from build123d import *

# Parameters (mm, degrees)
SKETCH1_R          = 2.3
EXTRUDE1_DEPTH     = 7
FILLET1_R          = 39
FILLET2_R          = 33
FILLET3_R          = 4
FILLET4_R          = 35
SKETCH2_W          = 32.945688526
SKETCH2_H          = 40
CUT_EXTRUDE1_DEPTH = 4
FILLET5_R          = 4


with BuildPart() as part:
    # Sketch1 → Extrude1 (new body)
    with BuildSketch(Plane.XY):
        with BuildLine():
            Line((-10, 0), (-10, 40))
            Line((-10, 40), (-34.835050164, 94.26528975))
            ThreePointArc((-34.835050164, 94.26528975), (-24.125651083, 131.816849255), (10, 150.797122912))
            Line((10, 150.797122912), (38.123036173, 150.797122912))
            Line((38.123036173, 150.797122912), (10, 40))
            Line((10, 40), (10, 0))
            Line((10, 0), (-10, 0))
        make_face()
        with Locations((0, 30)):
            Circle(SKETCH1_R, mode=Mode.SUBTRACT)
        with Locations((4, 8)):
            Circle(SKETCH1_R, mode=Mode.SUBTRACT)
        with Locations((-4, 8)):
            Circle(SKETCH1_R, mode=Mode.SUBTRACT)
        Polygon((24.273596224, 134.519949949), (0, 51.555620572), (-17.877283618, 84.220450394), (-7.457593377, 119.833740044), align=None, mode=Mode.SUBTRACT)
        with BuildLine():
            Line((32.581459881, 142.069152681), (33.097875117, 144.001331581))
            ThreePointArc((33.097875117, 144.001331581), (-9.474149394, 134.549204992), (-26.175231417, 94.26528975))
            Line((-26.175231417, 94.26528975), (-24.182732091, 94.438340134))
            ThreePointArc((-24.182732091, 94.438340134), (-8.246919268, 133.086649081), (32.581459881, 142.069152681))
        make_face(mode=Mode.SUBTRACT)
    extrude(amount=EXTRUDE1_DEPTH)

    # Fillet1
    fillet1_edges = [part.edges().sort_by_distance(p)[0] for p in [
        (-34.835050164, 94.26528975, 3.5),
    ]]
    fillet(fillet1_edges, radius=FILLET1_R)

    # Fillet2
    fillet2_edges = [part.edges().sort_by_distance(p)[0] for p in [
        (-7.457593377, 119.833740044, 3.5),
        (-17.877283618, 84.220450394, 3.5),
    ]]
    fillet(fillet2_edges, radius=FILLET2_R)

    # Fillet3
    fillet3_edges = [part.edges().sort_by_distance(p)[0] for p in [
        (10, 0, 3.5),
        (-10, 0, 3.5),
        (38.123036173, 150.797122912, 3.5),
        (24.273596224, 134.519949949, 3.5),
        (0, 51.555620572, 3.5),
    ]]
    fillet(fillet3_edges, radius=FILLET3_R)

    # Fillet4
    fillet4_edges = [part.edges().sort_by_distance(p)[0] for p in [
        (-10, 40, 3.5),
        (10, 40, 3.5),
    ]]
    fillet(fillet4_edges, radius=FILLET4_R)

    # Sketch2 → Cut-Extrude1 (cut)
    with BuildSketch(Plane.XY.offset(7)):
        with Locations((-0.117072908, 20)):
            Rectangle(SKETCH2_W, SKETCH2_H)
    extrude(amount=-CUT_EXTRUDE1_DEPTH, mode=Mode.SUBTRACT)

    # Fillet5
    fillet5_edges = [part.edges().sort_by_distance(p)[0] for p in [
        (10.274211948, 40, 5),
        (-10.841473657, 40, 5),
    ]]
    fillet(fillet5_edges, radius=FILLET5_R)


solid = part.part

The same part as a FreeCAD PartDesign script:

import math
import FreeCAD as App
import Part
import Sketcher
from FreeCAD import Vector


def edges_at(feature, points):
    """Names of the edges that pass closest to the given points."""
    edges = feature.Shape.Edges
    near = lambda p: min(range(len(edges)), key=lambda i: edges[i].distToShape(Part.Vertex(*p))[0])
    return sorted({f"Edge{near(p) + 1}" for p in points})

doc = App.newDocument("Part")
body = doc.addObject("PartDesign::Body", "Body")

# Sketch on XY plane
sketch1 = body.newObject("Sketcher::SketchObject", "Sketch")
sketch1.AttachmentSupport = (doc.getObject("XY_Plane"), [""])
sketch1.MapMode = "FlatFace"
sketch1.addGeometry(Part.LineSegment(Vector(-10, 40, 0), Vector(-10, 0, 0)), False)
sketch1.addGeometry(Part.LineSegment(Vector(-10, 0, 0), Vector(10, 0, 0)), False)
sketch1.addGeometry(Part.LineSegment(Vector(10, 0, 0), Vector(10, 40, 0)), False)
sketch1.addGeometry(Part.LineSegment(Vector(10, 40, 0), Vector(38.1, 150.8, 0)), False)
sketch1.addGeometry(Part.LineSegment(Vector(38.1, 150.8, 0), Vector(10, 150.8, 0)), False)
sketch1.addGeometry(Part.ArcOfCircle(Part.Circle(Vector(15.8, 100.1, 0), Vector(0, 0, 1), 51), math.radians(97), math.radians(187)), False)
sketch1.addGeometry(Part.LineSegment(Vector(-34.8, 94.3, 0), Vector(-10, 40, 0)), False)
sketch1.addGeometry(Part.Circle(Vector(4, 8, 0), Vector(0, 0, 1), 2.3), False)
sketch1.addGeometry(Part.Circle(Vector(-4, 8, 0), Vector(0, 0, 1), 2.3), False)
sketch1.addGeometry(Part.Circle(Vector(0, 30, 0), Vector(0, 0, 1), 2.3), False)
sketch1.addGeometry(Part.LineSegment(Vector(24.3, 134.5, 0), Vector(0, 51.6, 0)), False)
sketch1.addGeometry(Part.LineSegment(Vector(0, 51.6, 0), Vector(-17.9, 84.2, 0)), False)
sketch1.addGeometry(Part.LineSegment(Vector(-17.9, 84.2, 0), Vector(-7.5, 119.8, 0)), False)
sketch1.addGeometry(Part.LineSegment(Vector(-7.5, 119.8, 0), Vector(24.3, 134.5, 0)), False)
sketch1.addGeometry(Part.ArcOfCircle(Part.Circle(Vector(20.8, 98.5, 0), Vector(0, 0, 1), 45.1), math.radians(75), math.radians(185)), False)
sketch1.addGeometry(Part.LineSegment(Vector(-24.2, 94.4, 0), Vector(-26.2, 94.3, 0)), False)
sketch1.addGeometry(Part.ArcOfCircle(Part.Circle(Vector(20.9, 98.4, 0), Vector(0, 0, 1), 47.2), math.radians(75), math.radians(185)), False)
sketch1.addGeometry(Part.LineSegment(Vector(33.1, 144, 0), Vector(32.6, 142.1, 0)), False)
sketch1.addConstraint(Sketcher.Constraint("Coincident", 0, 2, 1, 1))
sketch1.addConstraint(Sketcher.Constraint("Coincident", 1, 2, 2, 1))
sketch1.addConstraint(Sketcher.Constraint("Coincident", 2, 2, 3, 1))
sketch1.addConstraint(Sketcher.Constraint("Coincident", 3, 2, 4, 1))
sketch1.addConstraint(Sketcher.Constraint("Coincident", 4, 2, 5, 1))
sketch1.addConstraint(Sketcher.Constraint("Coincident", 5, 2, 6, 1))
sketch1.addConstraint(Sketcher.Constraint("Coincident", 6, 2, 0, 1))
sketch1.addConstraint(Sketcher.Constraint("Coincident", 10, 2, 11, 1))
sketch1.addConstraint(Sketcher.Constraint("Coincident", 11, 2, 12, 1))
sketch1.addConstraint(Sketcher.Constraint("Coincident", 12, 2, 13, 1))
sketch1.addConstraint(Sketcher.Constraint("Coincident", 13, 2, 10, 1))
sketch1.addConstraint(Sketcher.Constraint("Coincident", 14, 2, 15, 1))
sketch1.addConstraint(Sketcher.Constraint("Coincident", 15, 2, 16, 2))
sketch1.addConstraint(Sketcher.Constraint("Coincident", 16, 1, 17, 1))
sketch1.addConstraint(Sketcher.Constraint("Coincident", 17, 2, 14, 1))
sketch1.addConstraint(Sketcher.Constraint("Vertical", 0))
sketch1.addConstraint(Sketcher.Constraint("Horizontal", 1))
sketch1.addConstraint(Sketcher.Constraint("Vertical", 2))
sketch1.addConstraint(Sketcher.Constraint("Horizontal", 4))
sketch1.addConstraint(Sketcher.Constraint("Equal", 7, 8))
sketch1.addConstraint(Sketcher.Constraint("Equal", 8, 9))
sketch1.addConstraint(Sketcher.Constraint("Symmetric", 0, 2, 1, 2, -1, 1))
sketch1.addConstraint(Sketcher.Constraint("Symmetric", 7, 3, 8, 3, -2))
sketch1.addConstraint(Sketcher.Constraint("PointOnObject", 9, 3, -2))
sketch1.addConstraint(Sketcher.Constraint("PointOnObject", 10, 2, -2))
sketch1.addConstraint(Sketcher.Constraint("Parallel", 10, 12))
sketch1.addConstraint(Sketcher.Constraint("Horizontal", 2, 2, 6, 2))
sketch1.addConstraint(Sketcher.Constraint("Horizontal", 5, 2, 15, 2))
sketch1.addConstraint(Sketcher.Constraint("Vertical", 2, 2, 4, 2))
sketch1.addConstraint(Sketcher.Constraint("Equal", 15, 17))
sketch1.addConstraint(Sketcher.Constraint("Diameter", 7, 4.6))
sketch1.addConstraint(Sketcher.Constraint("DistanceX", 1, 1, 1, 2, 20.0))
sketch1.addConstraint(Sketcher.Constraint("DistanceY", 0, 2, 0, 1, 40.0))
sketch1.addConstraint(Sketcher.Constraint("Radius", 16, 47.25))
sketch1.addConstraint(Sketcher.Constraint("Distance", 15, 2.0))
sketch1.addConstraint(Sketcher.Constraint("DistanceX", -1, 1, 7, 3, 4.0))
sketch1.addConstraint(Sketcher.Constraint("DistanceY", -1, 1, 7, 3, 8.0))
sketch1.addConstraint(Sketcher.Constraint("DistanceY", -1, 1, 9, 3, 30.0))
sketch1.addConstraint(Sketcher.Constraint("Radius", 5, 51.019751))
sketch1.addConstraint(Sketcher.Constraint("Radius", 14, 45.128435))
sketch1.addConstraint(Sketcher.Constraint("DistanceY", 14, 2, 12, 2, 25.3954))
sketch1.addConstraint(Sketcher.Constraint("DistanceX", 15, 2, 14, 2, 1.992499))
sketch1.addConstraint(Sketcher.Constraint("DistanceX", 4, 2, 4, 1, 28.123036))
sketch1.addConstraint(Sketcher.Constraint("DistanceX", -1, 1, 5, 3, 15.848391))
sketch1.addConstraint(Sketcher.Constraint("DistanceY", -1, 1, 5, 3, 100.113681))
sketch1.addConstraint(Sketcher.Constraint("DistanceX", -1, 1, 14, 3, 20.76108))
sketch1.addConstraint(Sketcher.Constraint("DistanceY", -1, 1, 14, 3, 98.516262))
sketch1.addConstraint(Sketcher.Constraint("DistanceX", 5, 2, -1, 1, 34.83505))
sketch1.addConstraint(Sketcher.Constraint("DistanceY", -1, 1, 10, 2, 51.555621))
sketch1.addConstraint(Sketcher.Constraint("DistanceY", -1, 1, 11, 2, 84.22045))
sketch1.addConstraint(Sketcher.Constraint("DistanceY", -1, 1, 13, 2, 134.51995))
sketch1.addConstraint(Sketcher.Constraint("DistanceY", -1, 1, 16, 1, 144.001332))
sketch1.addConstraint(Sketcher.Constraint("DistanceX", -1, 1, 17, 2, 32.58146))
sketch1.addConstraint(Sketcher.Constraint("DistanceX", 11, 2, 16, 3, 38.774849))
sketch1.addConstraint(Sketcher.Constraint("DistanceX", 12, 2, 16, 3, 28.355159))
pad1 = body.newObject("PartDesign::Pad", "Pad")
pad1.Profile = sketch1
pad1.Length = 7
doc.recompute()

fillet = body.newObject("PartDesign::Fillet", "Fillet")
fillet.Base = (pad1, edges_at(pad1, [(-34.835, 94.265, 3.5)]))
fillet.Radius = 39
doc.recompute()

fillet2 = body.newObject("PartDesign::Fillet", "Fillet001")
fillet2.Base = (fillet, edges_at(fillet, [(-7.458, 119.834, 3.5), (-17.877, 84.22, 3.5)]))
fillet2.Radius = 33
doc.recompute()

fillet3 = body.newObject("PartDesign::Fillet", "Fillet002")
fillet3.Base = (fillet2, edges_at(fillet2, [
    (10, 0, 3.5),
    (-10, 0, 3.5),
    (38.123, 150.797, 3.5),
    (24.274, 134.52, 3.5),
    (0, 51.556, 3.5),
]))
fillet3.Radius = 4
doc.recompute()

fillet4 = body.newObject("PartDesign::Fillet", "Fillet003")
fillet4.Base = (fillet3, edges_at(fillet3, [(-10, 40, 3.5), (10, 40, 3.5)]))
fillet4.Radius = 35

# Sketch on XY plane
sketch2 = body.newObject("Sketcher::SketchObject", "Sketch001")
sketch2.AttachmentSupport = (doc.getObject("XY_Plane"), [""])
sketch2.MapMode = "FlatFace"
sketch2.AttachmentOffset = App.Placement(Vector(0, 0, 7), App.Rotation())
sketch2.addGeometry(Part.LineSegment(Vector(-17, 40, 0), Vector(-17, 0, 0)), False)
sketch2.addGeometry(Part.LineSegment(Vector(-17, 0, 0), Vector(16, 0, 0)), False)
sketch2.addGeometry(Part.LineSegment(Vector(16, 0, 0), Vector(16, 40, 0)), False)
sketch2.addGeometry(Part.LineSegment(Vector(16, 40, 0), Vector(-17, 40, 0)), False)
sketch2.addConstraint(Sketcher.Constraint("Coincident", 0, 2, 1, 1))
sketch2.addConstraint(Sketcher.Constraint("Coincident", 1, 2, 2, 1))
sketch2.addConstraint(Sketcher.Constraint("Coincident", 2, 2, 3, 1))
sketch2.addConstraint(Sketcher.Constraint("Coincident", 3, 2, 0, 1))
sketch2.addConstraint(Sketcher.Constraint("Vertical", 0))
sketch2.addConstraint(Sketcher.Constraint("Horizontal", 1))
sketch2.addConstraint(Sketcher.Constraint("Vertical", 2))
sketch2.addConstraint(Sketcher.Constraint("Horizontal", 3))
sketch2.addConstraint(Sketcher.Constraint("PointOnObject", 0, 2, -1))
sketch2.addConstraint(Sketcher.Constraint("DistanceY", 0, 2, 0, 1, 40.0))
sketch2.addConstraint(Sketcher.Constraint("DistanceX", 1, 1, 1, 2, 32.945689))
sketch2.addConstraint(Sketcher.Constraint("DistanceX", -1, 1, 1, 2, 16.355771))
pocket1 = body.newObject("PartDesign::Pocket", "Pocket")
pocket1.Profile = sketch2
pocket1.Length = 4
doc.recompute()

fillet5 = body.newObject("PartDesign::Fillet", "Fillet004")
fillet5.Base = (pocket1, edges_at(pocket1, [(10.274, 40, 5), (-10.841, 40, 5)]))
fillet5.Radius = 4

doc.recompute()
